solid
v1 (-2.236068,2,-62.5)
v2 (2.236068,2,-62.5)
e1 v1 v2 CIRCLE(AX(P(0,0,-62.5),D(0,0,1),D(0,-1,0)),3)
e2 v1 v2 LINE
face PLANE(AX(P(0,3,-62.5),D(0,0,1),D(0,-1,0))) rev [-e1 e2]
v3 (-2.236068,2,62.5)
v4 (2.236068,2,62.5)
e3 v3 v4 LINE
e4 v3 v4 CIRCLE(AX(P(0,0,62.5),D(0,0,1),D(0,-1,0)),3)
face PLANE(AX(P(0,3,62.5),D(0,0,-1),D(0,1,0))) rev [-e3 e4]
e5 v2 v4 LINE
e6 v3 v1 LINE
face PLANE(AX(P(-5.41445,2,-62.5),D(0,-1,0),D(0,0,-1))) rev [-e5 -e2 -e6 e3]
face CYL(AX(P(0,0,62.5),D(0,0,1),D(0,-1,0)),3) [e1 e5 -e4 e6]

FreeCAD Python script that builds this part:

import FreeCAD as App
import Part
import Sketcher
from FreeCAD import Vector
Q = App.Units.Quantity


def add_polygon(sketch, points):
    """Adds a closed chain of lines whose ends are joined by coincident constraints."""
    first, n = sketch.GeometryCount, len(points)
    for a, b in zip(points, points[1:] + points[:1]):
        sketch.addGeometry(Part.LineSegment(App.Vector(*a, 0), App.Vector(*b, 0)), False)
    for i in range(n):
        sketch.addConstraint(Sketcher.Constraint("Coincident", first + i, 2, first + (i + 1) % n, 1))

doc = App.newDocument("Part")
params = doc.addObject("Spreadsheet::Sheet", "Params")
for row, (alias, value) in enumerate([
    ("sketch1_width", "3 mm"),
    ("sketch1_height", "125 mm"),
    ("revolution_angle", "360 deg"),
], start=1):
    params.set(f"A{row}", alias)
    params.set(f"B{row}", "=" + value)
    params.setAlias(f"B{row}", alias)

body = doc.addObject("PartDesign::Body", "Body")

# Sketch on YZ plane
sketch1 = doc.addObject("Sketcher::SketchObject", "Sketch")
body.addObject(sketch1)
sketch1.AttachmentSupport = (doc.YZ_Plane, [""])
sketch1.MapMode = "FlatFace"
add_polygon(sketch1, [(3, 62.5), (0, 62.5), (0, -62.5), (3, -62.5)])  # lines 0-3
sketch1.addConstraint([
    Sketcher.Constraint("Horizontal", 0),
    Sketcher.Constraint("Vertical", 1),
    Sketcher.Constraint("Horizontal", 2),
    Sketcher.Constraint("Vertical", 3),
    Sketcher.Constraint("Symmetric", 0, 2, 1, 2, -1, 1),
    Sketcher.Constraint("DistanceX", 0, 2, 0, 1, Q("3 mm")),
    Sketcher.Constraint("DistanceY", 1, 2, 1, 1, Q("125 mm")),
])
sketch1.setExpression("Constraints[9]", "Params.sketch1_width")
sketch1.setExpression("Constraints[10]", "Params.sketch1_height")
revolution = doc.addObject("PartDesign::Revolution", "Revolution")
body.addObject(revolution)
revolution.Profile = sketch1
revolution.ReferenceAxis = (sketch1, ["V_Axis"])
revolution.setExpression("Angle", "Params.revolution_angle")

# Sketch on XY plane
sketch2 = doc.addObject("Sketcher::SketchObject", "Sketch001")
body.addObject(sketch2)
sketch2.AttachmentSupport = (doc.XY_Plane, [""])
sketch2.MapMode = "FlatFace"
add_polygon(sketch2, [(-5.4, 3.9), (-5.4, 2), (6.4, 2), (6.4, 3.9)])  # lines 0-3
sketch2.addConstraint([
    Sketcher.Constraint("Vertical", 0),
    Sketcher.Constraint("Horizontal", 1),
    Sketcher.Constraint("Vertical", 2),
    Sketcher.Constraint("Horizontal", 3),
    Sketcher.Constraint("DistanceY", -1, 1, 0, 2, Q("2 mm")),
    Sketcher.Constraint("DistanceX", 1, 1, 1, 2, Q("11.840496 mm")),
    Sketcher.Constraint("DistanceY", 0, 2, 0, 1, Q("1.897948 mm")),
    Sketcher.Constraint("DistanceX", 0, 2, -1, 1, Q("5.41445 mm")),
])
pocket1 = doc.addObject("PartDesign::Pocket", "Pocket")
body.addObject(pocket1)
pocket1.Profile = sketch2
pocket1.Type = "ThroughAll"
pocket1.Midplane = True

doc.recompute()
